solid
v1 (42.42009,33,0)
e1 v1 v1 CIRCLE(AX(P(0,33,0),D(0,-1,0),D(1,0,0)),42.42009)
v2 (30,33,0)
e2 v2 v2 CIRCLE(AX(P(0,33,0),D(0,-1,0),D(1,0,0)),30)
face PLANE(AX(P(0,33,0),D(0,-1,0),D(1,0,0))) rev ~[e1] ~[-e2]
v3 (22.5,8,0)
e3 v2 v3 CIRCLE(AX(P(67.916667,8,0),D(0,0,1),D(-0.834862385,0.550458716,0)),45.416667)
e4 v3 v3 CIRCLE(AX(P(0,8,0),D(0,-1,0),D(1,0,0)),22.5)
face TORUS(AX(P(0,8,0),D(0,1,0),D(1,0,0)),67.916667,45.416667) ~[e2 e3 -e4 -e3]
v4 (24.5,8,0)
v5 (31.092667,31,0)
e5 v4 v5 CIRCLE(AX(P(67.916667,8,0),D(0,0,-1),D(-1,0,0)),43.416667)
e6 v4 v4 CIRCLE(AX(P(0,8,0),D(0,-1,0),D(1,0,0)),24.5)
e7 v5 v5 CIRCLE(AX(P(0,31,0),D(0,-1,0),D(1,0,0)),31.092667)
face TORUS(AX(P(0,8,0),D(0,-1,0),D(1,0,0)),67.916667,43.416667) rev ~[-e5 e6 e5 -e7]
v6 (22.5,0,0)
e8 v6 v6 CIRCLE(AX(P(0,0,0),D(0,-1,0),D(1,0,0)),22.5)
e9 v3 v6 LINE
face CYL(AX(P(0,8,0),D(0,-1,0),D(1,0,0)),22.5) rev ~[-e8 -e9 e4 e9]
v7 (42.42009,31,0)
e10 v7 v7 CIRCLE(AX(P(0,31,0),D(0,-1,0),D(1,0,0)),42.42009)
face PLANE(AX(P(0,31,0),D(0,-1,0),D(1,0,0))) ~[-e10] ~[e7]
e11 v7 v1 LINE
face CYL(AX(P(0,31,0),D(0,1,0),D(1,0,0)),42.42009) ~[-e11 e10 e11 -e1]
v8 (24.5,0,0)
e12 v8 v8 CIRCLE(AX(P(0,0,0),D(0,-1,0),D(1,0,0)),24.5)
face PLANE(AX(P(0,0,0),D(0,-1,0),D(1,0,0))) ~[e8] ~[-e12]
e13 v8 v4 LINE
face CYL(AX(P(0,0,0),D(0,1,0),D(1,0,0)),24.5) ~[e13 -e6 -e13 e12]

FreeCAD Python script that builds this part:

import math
import FreeCAD as App
import Part
import Sketcher
from FreeCAD import Vector
Q = App.Units.Quantity

doc = App.newDocument("Part")
body = doc.addObject("PartDesign::Body", "Body")

sketch1 = body.newObject("Sketcher::SketchObject", "Sketch")
sketch1.AttachmentSupport = (doc.getObject("XY_Plane"), [""])
sketch1.MapMode = "FlatFace"
sketch1.addGeometry(Part.LineSegment(Vector(22.5, 8, 0), Vector(22.5, 0, 0)), False)
sketch1.addGeometry(Part.LineSegment(Vector(22.5, 0, 0), Vector(24.5, 0, 0)), False)
sketch1.addGeometry(Part.LineSegment(Vector(24.5, 0, 0), Vector(24.5, 8, 0)), False)
sketch1.addGeometry(Part.ArcOfCircle(Part.Circle(Vector(67.916667, 8, 0), Vector(0, 0, 1), 43.416667), math.radians(148.011403), math.radians(180)), False)
sketch1.addGeometry(Part.LineSegment(Vector(31.092667, 31, 0), Vector(42.42009, 31, 0)), False)
sketch1.addGeometry(Part.LineSegment(Vector(42.42009, 31, 0), Vector(42.42009, 33, 0)), False)
sketch1.addGeometry(Part.LineSegment(Vector(42.42009, 33, 0), Vector(30, 33, 0)), False)
sketch1.addGeometry(Part.ArcOfCircle(Part.Circle(Vector(67.916667, 8, 0), Vector(0, 0, 1), 45.416667), math.radians(146.601512), math.radians(180)), False)
sketch1.addConstraint(Sketcher.Constraint("Coincident", 0, 2, 1, 1))
sketch1.addConstraint(Sketcher.Constraint("Coincident", 1, 2, 2, 1))
sketch1.addConstraint(Sketcher.Constraint("Tangent", 2, 2, 3, 2))
sketch1.addConstraint(Sketcher.Constraint("Coincident", 3, 1, 4, 1))
sketch1.addConstraint(Sketcher.Constraint("Coincident", 4, 2, 5, 1))
sketch1.addConstraint(Sketcher.Constraint("Coincident", 5, 2, 6, 1))
sketch1.addConstraint(Sketcher.Constraint("Coincident", 6, 2, 7, 1))
sketch1.addConstraint(Sketcher.Constraint("Tangent", 7, 2, 0, 1))
sketch1.addConstraint(Sketcher.Constraint("Vertical", 0))
sketch1.addConstraint(Sketcher.Constraint("Horizontal", 1))
sketch1.addConstraint(Sketcher.Constraint("Vertical", 2))
sketch1.addConstraint(Sketcher.Constraint("Horizontal", 4))
sketch1.addConstraint(Sketcher.Constraint("Vertical", 5))
sketch1.addConstraint(Sketcher.Constraint("Horizontal", 6))
sketch1.addConstraint(Sketcher.Constraint("Coincident", 7, 3, 3, 3))
sketch1.addConstraint(Sketcher.Constraint("PointOnObject", 0, 2, -1))
sketch1.addConstraint(Sketcher.Constraint("Equal", 1, 5))
sketch1.addConstraint(Sketcher.Constraint("DistanceX", 1, 1, 1, 2, Q("2 mm")))
sketch1.addConstraint(Sketcher.Constraint("DistanceY", 0, 2, 0, 1, Q("8 mm")))
sketch1.addConstraint(Sketcher.Constraint("DistanceY", -1, 1, 3, 1, Q("31 mm")))
sketch1.addConstraint(Sketcher.Constraint("DistanceX", -1, 1, 6, 2, Q("30 mm")))
sketch1.addConstraint(Sketcher.Constraint("DistanceX", -1, 1, 0, 2, Q("22.5 mm")))
sketch1.addConstraint(Sketcher.Constraint("DistanceX", 6, 2, 6, 1, Q("12.42009 mm")))
revolution = body.newObject("PartDesign::Revolution", "Revolution")
revolution.Profile = sketch1
revolution.ReferenceAxis = (sketch1, ["V_Axis"])
revolution.Angle = 360

doc.recompute()
